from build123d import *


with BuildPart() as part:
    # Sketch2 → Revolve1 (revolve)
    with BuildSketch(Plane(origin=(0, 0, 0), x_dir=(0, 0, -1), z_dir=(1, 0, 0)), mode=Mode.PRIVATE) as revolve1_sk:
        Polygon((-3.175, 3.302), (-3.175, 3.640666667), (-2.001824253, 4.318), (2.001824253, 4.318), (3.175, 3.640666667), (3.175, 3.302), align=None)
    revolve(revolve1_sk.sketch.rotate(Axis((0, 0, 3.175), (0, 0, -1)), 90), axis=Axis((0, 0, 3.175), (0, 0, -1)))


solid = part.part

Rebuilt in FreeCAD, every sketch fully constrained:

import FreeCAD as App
import Part
import Sketcher
from FreeCAD import Vector
Q = App.Units.Quantity


def add_polygon(sketch, points):
    """Adds a closed chain of lines whose ends are joined by coincident constraints."""
    first, n = sketch.GeometryCount, len(points)
    for a, b in zip(points, points[1:] + points[:1]):
        sketch.addGeometry(Part.LineSegment(App.Vector(*a, 0), App.Vector(*b, 0)), False)
    for i in range(n):
        sketch.addConstraint(Sketcher.Constraint("Coincident", first + i, 2, first + (i + 1) % n, 1))

doc = App.newDocument("Part")
params = doc.addObject("Spreadsheet::Sheet", "Params")
for row, (alias, value) in enumerate([
    ("sketch1_height", "0.25 in"),
    ("revolution_angle", "360 deg"),
], start=1):
    params.set(f"A{row}", alias)
    params.set(f"B{row}", "=" + value)
    params.setAlias(f"B{row}", alias)

body = doc.addObject("PartDesign::Body", "Body")

sketch1 = doc.addObject("Sketcher::SketchObject", "Sketch")
body.addObject(sketch1)
sketch1.AttachmentSupport = (doc.YZ_Plane, [""])
sketch1.MapMode = "FlatFace"
add_polygon(sketch1, [(3.64, 3.17), (3.3, 3.17), (3.3, -3.17), (3.64, -3.17), (4.32, -2), (4.32, 2)])
sketch1.addConstraint([
    Sketcher.Constraint("Horizontal", 0),
    Sketcher.Constraint("Vertical", 1),
    Sketcher.Constraint("Horizontal", 2),
    Sketcher.Constraint("Vertical", 4),
    Sketcher.Constraint("Symmetric", 2, 2, 5, 2, -1),
    Sketcher.Constraint("Equal", 3, 5),
    Sketcher.Constraint("Angle", 3, Q("60 deg")),
    Sketcher.Constraint("DistanceY", 1, 2, 1, 1, Q("0.25 in")),
    Sketcher.Constraint("DistanceX", -1, 1, 0, 2, Q("0.13 in")),
    Sketcher.Constraint("DistanceX", -1, 1, 3, 2, Q("0.17 in")),
    Sketcher.Constraint("DistanceY", 4, 1, 4, 2, 4.003649),
])
sketch1.setExpression("Constraints[13]", "Params.sketch1_height")
revolution = doc.addObject("PartDesign::Revolution", "Revolution")
body.addObject(revolution)
revolution.Profile = sketch1
revolution.ReferenceAxis = (sketch1, ["V_Axis"])
revolution.setExpression("Angle", "Params.revolution_angle")

doc.recompute()
